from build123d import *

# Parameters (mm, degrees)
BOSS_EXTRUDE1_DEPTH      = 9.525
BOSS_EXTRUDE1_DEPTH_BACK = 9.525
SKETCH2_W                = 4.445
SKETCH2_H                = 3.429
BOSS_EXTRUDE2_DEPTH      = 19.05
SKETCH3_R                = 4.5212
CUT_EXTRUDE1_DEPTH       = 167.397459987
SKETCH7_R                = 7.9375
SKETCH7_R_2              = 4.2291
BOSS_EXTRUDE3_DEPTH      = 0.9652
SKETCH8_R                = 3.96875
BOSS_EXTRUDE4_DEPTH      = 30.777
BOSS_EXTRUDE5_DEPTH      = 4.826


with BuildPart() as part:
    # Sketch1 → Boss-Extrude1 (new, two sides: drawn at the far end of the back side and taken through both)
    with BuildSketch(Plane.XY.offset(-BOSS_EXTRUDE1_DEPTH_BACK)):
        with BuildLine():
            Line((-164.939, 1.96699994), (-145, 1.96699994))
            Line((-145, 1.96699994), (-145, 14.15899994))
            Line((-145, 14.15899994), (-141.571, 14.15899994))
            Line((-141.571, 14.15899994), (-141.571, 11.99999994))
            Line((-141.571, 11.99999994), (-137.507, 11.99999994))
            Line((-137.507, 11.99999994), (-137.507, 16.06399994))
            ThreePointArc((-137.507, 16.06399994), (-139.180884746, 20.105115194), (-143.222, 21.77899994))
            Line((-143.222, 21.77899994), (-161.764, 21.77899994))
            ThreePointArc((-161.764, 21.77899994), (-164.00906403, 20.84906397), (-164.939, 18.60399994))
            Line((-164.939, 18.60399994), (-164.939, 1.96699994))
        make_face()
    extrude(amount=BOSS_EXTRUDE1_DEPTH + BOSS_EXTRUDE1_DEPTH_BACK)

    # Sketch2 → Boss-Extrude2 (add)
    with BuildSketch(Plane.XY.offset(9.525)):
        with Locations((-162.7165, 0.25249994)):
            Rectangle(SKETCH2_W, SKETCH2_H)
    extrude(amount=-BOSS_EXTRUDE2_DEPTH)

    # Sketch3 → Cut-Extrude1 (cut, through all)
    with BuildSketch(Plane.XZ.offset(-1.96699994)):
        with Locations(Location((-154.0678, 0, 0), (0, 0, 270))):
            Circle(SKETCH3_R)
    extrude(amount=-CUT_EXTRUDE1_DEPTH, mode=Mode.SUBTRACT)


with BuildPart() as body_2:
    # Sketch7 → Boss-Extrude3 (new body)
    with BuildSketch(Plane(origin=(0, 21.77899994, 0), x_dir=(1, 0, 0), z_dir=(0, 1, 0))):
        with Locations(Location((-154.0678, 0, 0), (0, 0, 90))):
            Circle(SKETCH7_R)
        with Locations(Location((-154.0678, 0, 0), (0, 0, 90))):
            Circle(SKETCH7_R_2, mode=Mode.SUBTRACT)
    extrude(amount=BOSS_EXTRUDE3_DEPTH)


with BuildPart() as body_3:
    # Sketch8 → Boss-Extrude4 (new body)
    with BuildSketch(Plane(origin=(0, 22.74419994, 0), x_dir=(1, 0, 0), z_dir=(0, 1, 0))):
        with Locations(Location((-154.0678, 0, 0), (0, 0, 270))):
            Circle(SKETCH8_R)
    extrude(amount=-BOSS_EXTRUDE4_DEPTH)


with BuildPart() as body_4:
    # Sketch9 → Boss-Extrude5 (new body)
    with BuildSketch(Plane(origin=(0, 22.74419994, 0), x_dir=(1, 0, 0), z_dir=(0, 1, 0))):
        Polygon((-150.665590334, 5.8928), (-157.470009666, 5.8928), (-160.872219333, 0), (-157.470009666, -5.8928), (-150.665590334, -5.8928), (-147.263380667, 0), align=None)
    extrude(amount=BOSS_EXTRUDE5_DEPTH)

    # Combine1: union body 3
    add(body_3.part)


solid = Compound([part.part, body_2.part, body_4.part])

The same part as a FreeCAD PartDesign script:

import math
import FreeCAD as App
import Part
import Sketcher
from FreeCAD import Vector
Q = App.Units.Quantity


def add_polygon(sketch, points):
    """Adds a closed chain of lines whose ends are joined by coincident constraints."""
    first, n = sketch.GeometryCount, len(points)
    for a, b in zip(points, points[1:] + points[:1]):
        sketch.addGeometry(Part.LineSegment(App.Vector(*a, 0), App.Vector(*b, 0)), False)
    for i in range(n):
        sketch.addConstraint(Sketcher.Constraint("Coincident", first + i, 2, first + (i + 1) % n, 1))

doc = App.newDocument("Part")
params = doc.addObject("Spreadsheet::Sheet", "Params")
for row, (alias, value) in enumerate([
    ("sketch1_radius", "0.225 in"),
    ("sketch1_radius2", "0.125 in"),
    ("sketch1_width", "0.16 in"),
    ("sketch1_width2", "0.73 in"),
    ("sketch1_height", "0.48 in"),
    ("pad1_length", "0.375 in"),
    ("pad1_length2", "0.375 in"),
    ("sketch2_width", "0.175 in"),
    ("sketch2_height", "0.135 in"),
    ("pad2_length", "0.75 in"),
    ("sketch3_diameter", "0.356 in"),
    ("sketch4_diameter", "0.625 in"),
    ("sketch4_diameter2", "0.333 in"),
    ("pad3_length", "0.038 in"),
    ("sketch5_diameter", "0.3125 in"),
    ("pad4_length", "30.777 mm"),
    ("pad5_length", "0.19 in"),
], start=1):
    params.set(f"A{row}", alias)
    params.set(f"B{row}", "=" + value)
    params.setAlias(f"B{row}", alias)

body = doc.addObject("PartDesign::Body", "Body")

# Sketch on XY plane
sketch1 = body.newObject("Sketcher::SketchObject", "Sketch")
sketch1.AttachmentSupport = (doc.getObject("XY_Plane"), [""])
sketch1.MapMode = "FlatFace"
sketch1.addGeometry([
    Part.LineSegment(Vector(-164.9, 2, 0), Vector(-145, 2, 0)),  # 0
    Part.LineSegment(Vector(-145, 2, 0), Vector(-145, 14.2, 0)),  # 1
    Part.LineSegment(Vector(-145, 14.2, 0), Vector(-141.6, 14.2, 0)),  # 2
    Part.LineSegment(Vector(-141.6, 14.2, 0), Vector(-141.6, 12, 0)),  # 3
    Part.LineSegment(Vector(-141.6, 12, 0), Vector(-137.5, 12, 0)),  # 4
    Part.LineSegment(Vector(-137.5, 12, 0), Vector(-137.5, 16.1, 0)),  # 5
    Part.ArcOfCircle(Part.Circle(Vector(-143.2, 16.1, 0), Vector(0, 0, 1), 5.7), math.radians(0), math.radians(90)),  # 6
    Part.LineSegment(Vector(-143.2, 21.8, 0), Vector(-161.8, 21.8, 0)),  # 7
    Part.ArcOfCircle(Part.Circle(Vector(-161.8, 18.6, 0), Vector(0, 0, 1), 3.2), math.radians(90), math.radians(180)),  # 8
    Part.LineSegment(Vector(-164.9, 18.6, 0), Vector(-164.9, 2, 0)),  # 9
], False)
sketch1.addConstraint([
    Sketcher.Constraint("Coincident", 0, 2, 1, 1),
    Sketcher.Constraint("Coincident", 1, 2, 2, 1),
    Sketcher.Constraint("Coincident", 2, 2, 3, 1),
    Sketcher.Constraint("Coincident", 3, 2, 4, 1),
    Sketcher.Constraint("Coincident", 4, 2, 5, 1),
    Sketcher.Constraint("Tangent", 5, 2, 6, 1),
    Sketcher.Constraint("Tangent", 6, 2, 7, 1),
    Sketcher.Constraint("Tangent", 7, 2, 8, 1),
    Sketcher.Constraint("Tangent", 8, 2, 9, 1),
    Sketcher.Constraint("Coincident", 9, 2, 0, 1),
    Sketcher.Constraint("Horizontal", 0),
    Sketcher.Constraint("Vertical", 1),
    Sketcher.Constraint("Horizontal", 2),
    Sketcher.Constraint("Vertical", 3),
    Sketcher.Constraint("Horizontal", 4),
    Sketcher.Constraint("Vertical", 5),
    Sketcher.Constraint("Horizontal", 7),
    Sketcher.Constraint("Vertical", 9),
    Sketcher.Constraint("Equal", 4, 5),
    Sketcher.Constraint("Radius", 6, Q("0.225 in")),
    Sketcher.Constraint("Radius", 8, Q("0.125 in")),
    Sketcher.Constraint("DistanceX", 4, 1, 4, 2, Q("0.16 in")),
    Sketcher.Constraint("DistanceX", 7, 2, 7, 1, Q("0.73 in")),
    Sketcher.Constraint("DistanceY", 1, 1, 1, 2, Q("0.48 in")),
    Sketcher.Constraint("DistanceY", 2, 2, 6, 2, Q("0.3 in")),
    Sketcher.Constraint("DistanceX", 0, 1, 0, 2, Q("0.785 in")),
    Sketcher.Constraint("DistanceX", 6, 3, -1, 1, 143.222),
    Sketcher.Constraint("DistanceY", -1, 1, 6, 3, 16.064),
])
sketch1.setExpression("Constraints[19]", "Params.sketch1_radius")
sketch1.setExpression("Constraints[20]", "Params.sketch1_radius2")
sketch1.setExpression("Constraints[21]", "Params.sketch1_width")
sketch1.setExpression("Constraints[22]", "Params.sketch1_width2")
sketch1.setExpression("Constraints[23]", "Params.sketch1_height")
pad1 = body.newObject("PartDesign::Pad", "Pad")
pad1.Profile = sketch1
pad1.Type = "TwoLengths"
pad1.setExpression("Length", "Params.pad1_length")
pad1.setExpression("Length2", "Params.pad1_length2")

# Sketch on XY plane
sketch2 = body.newObject("Sketcher::SketchObject", "Sketch001")
sketch2.AttachmentSupport = (doc.getObject("XY_Plane"), [""])
sketch2.MapMode = "FlatFace"
sketch2.AttachmentOffset = App.Placement(Vector(0, 0, 0.375 * 25.4), App.Rotation())
add_polygon(sketch2, [(-164.9, 2), (-164.9, -1.5), (-160.5, -1.5), (-160.5, 2)])  # lines 0-3
sketch2.addConstraint([
    Sketcher.Constraint("Vertical", 0),
    Sketcher.Constraint("Horizontal", 1),
    Sketcher.Constraint("Vertical", 2),
    Sketcher.Constraint("Horizontal", 3),
    Sketcher.Constraint("DistanceX", 1, 1, 1, 2, Q("0.175 in")),
    Sketcher.Constraint("DistanceY", 0, 2, 0, 1, Q("0.135 in")),
    Sketcher.Constraint("DistanceX", 0, 2, -1, 1, 164.939),
    Sketcher.Constraint("DistanceY", 0, 2, -1, 1, 1.462),
])
sketch2.setExpression("Constraints[8]", "Params.sketch2_width")
sketch2.setExpression("Constraints[9]", "Params.sketch2_height")
pad2 = body.newObject("PartDesign::Pad", "Pad001")
pad2.Profile = sketch2
pad2.setExpression("Length", "Params.pad2_length")
pad2.Reversed = True

# Sketch on XZ plane
sketch3 = body.newObject("Sketcher::SketchObject", "Sketch002")
sketch3.AttachmentSupport = (doc.getObject("XZ_Plane"), [""])
sketch3.MapMode = "FlatFace"
sketch3.AttachmentOffset = App.Placement(Vector(0, 0, -1.967), App.Rotation())
sketch3.addGeometry(Part.Circle(Vector(-154.1, 0, 0), Vector(0, 0, 1), 4.5), False)
sketch3.addConstraint([
    Sketcher.Constraint("PointOnObject", 0, 3, -1),
    Sketcher.Constraint("Diameter", 0, Q("0.356 in")),
    Sketcher.Constraint("DistanceX", 0, 3, -1, 1, 154.0678),
])
sketch3.setExpression("Constraints[1]", "Params.sketch3_diameter")
pocket1 = body.newObject("PartDesign::Pocket", "Pocket")
pocket1.Profile = sketch3
pocket1.Type = "ThroughAll"
body2 = doc.addObject("PartDesign::Body", "Body001")

# Sketch on XZ plane
sketch4 = body2.newObject("Sketcher::SketchObject", "Sketch003")
sketch4.AttachmentSupport = (doc.getObject("XZ_Plane001"), [""])
sketch4.MapMode = "FlatFace"
sketch4.AttachmentOffset = App.Placement(Vector(0, 0, -21.779), App.Rotation())
sketch4.addGeometry([
    Part.Circle(Vector(-154.1, 0, 0), Vector(0, 0, 1), 7.9),
    Part.Circle(Vector(-154.1, 0, 0), Vector(0, 0, 1), 4.2),
], False)
sketch4.addConstraint([
    Sketcher.Constraint("Coincident", 1, 3, 0, 3),
    Sketcher.Constraint("PointOnObject", 0, 3, -1),
    Sketcher.Constraint("Diameter", 0, Q("0.625 in")),
    Sketcher.Constraint("Diameter", 1, Q("0.333 in")),
    Sketcher.Constraint("DistanceX", 0, 3, -1, 1, 154.0678),
])
sketch4.setExpression("Constraints[2]", "Params.sketch4_diameter")
sketch4.setExpression("Constraints[3]", "Params.sketch4_diameter2")
pad3 = body2.newObject("PartDesign::Pad", "Pad002")
pad3.Profile = sketch4
pad3.setExpression("Length", "Params.pad3_length")
pad3.Reversed = True
body3 = doc.addObject("PartDesign::Body", "Body002")

# Sketch on XZ plane
sketch5 = body3.newObject("Sketcher::SketchObject", "Sketch004")
sketch5.AttachmentSupport = (doc.getObject("XZ_Plane002"), [""])
sketch5.MapMode = "FlatFace"
sketch5.AttachmentOffset = App.Placement(Vector(0, 0, -22.7442), App.Rotation())
sketch5.addGeometry(Part.Circle(Vector(-154.1, 0, 0), Vector(0, 0, 1), 4), False)
sketch5.addConstraint([
    Sketcher.Constraint("PointOnObject", 0, 3, -1),
    Sketcher.Constraint("Diameter", 0, Q("0.3125 in")),
    Sketcher.Constraint("DistanceX", 0, 3, -1, 1, 154.0678),
])
sketch5.setExpression("Constraints[1]", "Params.sketch5_diameter")
pad4 = body3.newObject("PartDesign::Pad", "Pad003")
pad4.Profile = sketch5
pad4.setExpression("Length", "Params.pad4_length")
body4 = doc.addObject("PartDesign::Body", "Body003")

# Sketch on XZ plane
sketch6 = body4.newObject("Sketcher::SketchObject", "Sketch005")
sketch6.AttachmentSupport = (doc.getObject("XZ_Plane003"), [""])
sketch6.MapMode = "FlatFace"
sketch6.AttachmentOffset = App.Placement(Vector(0, 0, -22.7442), App.Rotation())
add_polygon(sketch6, [(-151, -6), (-157, -6), (-161, 0), (-157, 6), (-151, 6), (-147, 0)])  # lines 0-5
sketch6.addConstraint([
    Sketcher.Constraint("Horizontal", 0),
    Sketcher.Constraint("Horizontal", 3),
    Sketcher.Constraint("Symmetric", 0, 2, 2, 2, -1),
    Sketcher.Constraint("PointOnObject", 1, 2, -1),
    Sketcher.Constraint("PointOnObject", 4, 2, -1),
    Sketcher.Constraint("Parallel", 1, 4),
    Sketcher.Constraint("Parallel", 2, 5),
    Sketcher.Constraint("Angle", 1, Q("120 deg")),
    Sketcher.Constraint("DistanceY", 0, 2, -1, 1, Q("0.232 in")),
    Sketcher.Constraint("DistanceX", 0, 2, 0, 1, 6.804419),
    Sketcher.Constraint("DistanceX", 0, 2, -1, 1, 157.47001),
])
pad5 = body4.newObject("PartDesign::Pad", "Pad004")
pad5.Profile = sketch6
pad5.setExpression("Length", "Params.pad5_length")
pad5.Reversed = True
doc.recompute()

boolean = body4.newObject("PartDesign::Boolean", "Boolean")
boolean.Type = "Fuse"
boolean.addObjects([body3])

doc.recompute()
